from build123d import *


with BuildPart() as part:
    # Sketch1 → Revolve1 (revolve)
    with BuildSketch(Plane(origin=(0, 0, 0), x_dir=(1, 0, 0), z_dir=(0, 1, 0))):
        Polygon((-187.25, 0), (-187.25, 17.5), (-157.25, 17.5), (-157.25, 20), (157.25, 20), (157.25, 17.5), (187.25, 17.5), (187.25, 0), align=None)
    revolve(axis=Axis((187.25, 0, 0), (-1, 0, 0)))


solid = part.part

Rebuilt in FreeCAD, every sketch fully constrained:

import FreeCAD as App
import Part
import Sketcher

V = App.Vector
Q = App.Units.Quantity

doc = App.newDocument("Part")
body = doc.addObject("PartDesign::Body", "Body")

# Sketch on XZ plane
sketch1 = body.newObject("Sketcher::SketchObject", "Sketch")
sketch1.AttachmentSupport = (doc.getObject("XZ_Plane"), [""])
sketch1.MapMode = "FlatFace"
sketch1.addGeometry([
    Part.LineSegment(V(-187.25, -17.5, 0), V(-187.25, 0, 0)),  # 0
    Part.LineSegment(V(-187.25, 0, 0), V(187.25, 0, 0)),  # 1
    Part.LineSegment(V(187.25, 0, 0), V(187.25, -17.5, 0)),  # 2
    Part.LineSegment(V(187.25, -17.5, 0), V(157.25, -17.5, 0)),  # 3
    Part.LineSegment(V(157.25, -17.5, 0), V(157.25, -20, 0)),  # 4
    Part.LineSegment(V(157.25, -20, 0), V(-157.25, -20, 0)),  # 5
    Part.LineSegment(V(-157.25, -20, 0), V(-157.25, -17.5, 0)),  # 6
    Part.LineSegment(V(-157.25, -17.5, 0), V(-187.25, -17.5, 0)),  # 7
], False)
sketch1.addConstraint([
    Sketcher.Constraint("Coincident", 0, 2, 1, 1),
    Sketcher.Constraint("Coincident", 1, 2, 2, 1),
    Sketcher.Constraint("Coincident", 2, 2, 3, 1),
    Sketcher.Constraint("Coincident", 3, 2, 4, 1),
    Sketcher.Constraint("Coincident", 4, 2, 5, 1),
    Sketcher.Constraint("Coincident", 5, 2, 6, 1),
    Sketcher.Constraint("Coincident", 6, 2, 7, 1),
    Sketcher.Constraint("Coincident", 7, 2, 0, 1),
    Sketcher.Constraint("Vertical", 0),
    Sketcher.Constraint("Horizontal", 1),
    Sketcher.Constraint("Vertical", 2),
    Sketcher.Constraint("Horizontal", 3),
    Sketcher.Constraint("Vertical", 4),
    Sketcher.Constraint("Horizontal", 5),
    Sketcher.Constraint("Vertical", 6),
    Sketcher.Constraint("Horizontal", 7),
    Sketcher.Constraint("Symmetric", 0, 2, 1, 2, -1, 1),
    Sketcher.Constraint("Symmetric", 3, 2, 6, 2, -2),
    Sketcher.Constraint("DistanceX", 3, 2, 3, 1, Q("30 mm")),
    Sketcher.Constraint("DistanceX", 1, 1, 1, 2, Q("374.5 mm")),
    Sketcher.Constraint("DistanceY", 0, 1, 0, 2, Q("17.5 mm")),
    Sketcher.Constraint("DistanceY", 4, 2, 4, 1, Q("2.5 mm")),
])
revolution = body.newObject("PartDesign::Revolution", "Revolution")
revolution.Profile = sketch1
revolution.ReferenceAxis = (sketch1, ["H_Axis"])
revolution.Angle = 360

doc.recompute()
